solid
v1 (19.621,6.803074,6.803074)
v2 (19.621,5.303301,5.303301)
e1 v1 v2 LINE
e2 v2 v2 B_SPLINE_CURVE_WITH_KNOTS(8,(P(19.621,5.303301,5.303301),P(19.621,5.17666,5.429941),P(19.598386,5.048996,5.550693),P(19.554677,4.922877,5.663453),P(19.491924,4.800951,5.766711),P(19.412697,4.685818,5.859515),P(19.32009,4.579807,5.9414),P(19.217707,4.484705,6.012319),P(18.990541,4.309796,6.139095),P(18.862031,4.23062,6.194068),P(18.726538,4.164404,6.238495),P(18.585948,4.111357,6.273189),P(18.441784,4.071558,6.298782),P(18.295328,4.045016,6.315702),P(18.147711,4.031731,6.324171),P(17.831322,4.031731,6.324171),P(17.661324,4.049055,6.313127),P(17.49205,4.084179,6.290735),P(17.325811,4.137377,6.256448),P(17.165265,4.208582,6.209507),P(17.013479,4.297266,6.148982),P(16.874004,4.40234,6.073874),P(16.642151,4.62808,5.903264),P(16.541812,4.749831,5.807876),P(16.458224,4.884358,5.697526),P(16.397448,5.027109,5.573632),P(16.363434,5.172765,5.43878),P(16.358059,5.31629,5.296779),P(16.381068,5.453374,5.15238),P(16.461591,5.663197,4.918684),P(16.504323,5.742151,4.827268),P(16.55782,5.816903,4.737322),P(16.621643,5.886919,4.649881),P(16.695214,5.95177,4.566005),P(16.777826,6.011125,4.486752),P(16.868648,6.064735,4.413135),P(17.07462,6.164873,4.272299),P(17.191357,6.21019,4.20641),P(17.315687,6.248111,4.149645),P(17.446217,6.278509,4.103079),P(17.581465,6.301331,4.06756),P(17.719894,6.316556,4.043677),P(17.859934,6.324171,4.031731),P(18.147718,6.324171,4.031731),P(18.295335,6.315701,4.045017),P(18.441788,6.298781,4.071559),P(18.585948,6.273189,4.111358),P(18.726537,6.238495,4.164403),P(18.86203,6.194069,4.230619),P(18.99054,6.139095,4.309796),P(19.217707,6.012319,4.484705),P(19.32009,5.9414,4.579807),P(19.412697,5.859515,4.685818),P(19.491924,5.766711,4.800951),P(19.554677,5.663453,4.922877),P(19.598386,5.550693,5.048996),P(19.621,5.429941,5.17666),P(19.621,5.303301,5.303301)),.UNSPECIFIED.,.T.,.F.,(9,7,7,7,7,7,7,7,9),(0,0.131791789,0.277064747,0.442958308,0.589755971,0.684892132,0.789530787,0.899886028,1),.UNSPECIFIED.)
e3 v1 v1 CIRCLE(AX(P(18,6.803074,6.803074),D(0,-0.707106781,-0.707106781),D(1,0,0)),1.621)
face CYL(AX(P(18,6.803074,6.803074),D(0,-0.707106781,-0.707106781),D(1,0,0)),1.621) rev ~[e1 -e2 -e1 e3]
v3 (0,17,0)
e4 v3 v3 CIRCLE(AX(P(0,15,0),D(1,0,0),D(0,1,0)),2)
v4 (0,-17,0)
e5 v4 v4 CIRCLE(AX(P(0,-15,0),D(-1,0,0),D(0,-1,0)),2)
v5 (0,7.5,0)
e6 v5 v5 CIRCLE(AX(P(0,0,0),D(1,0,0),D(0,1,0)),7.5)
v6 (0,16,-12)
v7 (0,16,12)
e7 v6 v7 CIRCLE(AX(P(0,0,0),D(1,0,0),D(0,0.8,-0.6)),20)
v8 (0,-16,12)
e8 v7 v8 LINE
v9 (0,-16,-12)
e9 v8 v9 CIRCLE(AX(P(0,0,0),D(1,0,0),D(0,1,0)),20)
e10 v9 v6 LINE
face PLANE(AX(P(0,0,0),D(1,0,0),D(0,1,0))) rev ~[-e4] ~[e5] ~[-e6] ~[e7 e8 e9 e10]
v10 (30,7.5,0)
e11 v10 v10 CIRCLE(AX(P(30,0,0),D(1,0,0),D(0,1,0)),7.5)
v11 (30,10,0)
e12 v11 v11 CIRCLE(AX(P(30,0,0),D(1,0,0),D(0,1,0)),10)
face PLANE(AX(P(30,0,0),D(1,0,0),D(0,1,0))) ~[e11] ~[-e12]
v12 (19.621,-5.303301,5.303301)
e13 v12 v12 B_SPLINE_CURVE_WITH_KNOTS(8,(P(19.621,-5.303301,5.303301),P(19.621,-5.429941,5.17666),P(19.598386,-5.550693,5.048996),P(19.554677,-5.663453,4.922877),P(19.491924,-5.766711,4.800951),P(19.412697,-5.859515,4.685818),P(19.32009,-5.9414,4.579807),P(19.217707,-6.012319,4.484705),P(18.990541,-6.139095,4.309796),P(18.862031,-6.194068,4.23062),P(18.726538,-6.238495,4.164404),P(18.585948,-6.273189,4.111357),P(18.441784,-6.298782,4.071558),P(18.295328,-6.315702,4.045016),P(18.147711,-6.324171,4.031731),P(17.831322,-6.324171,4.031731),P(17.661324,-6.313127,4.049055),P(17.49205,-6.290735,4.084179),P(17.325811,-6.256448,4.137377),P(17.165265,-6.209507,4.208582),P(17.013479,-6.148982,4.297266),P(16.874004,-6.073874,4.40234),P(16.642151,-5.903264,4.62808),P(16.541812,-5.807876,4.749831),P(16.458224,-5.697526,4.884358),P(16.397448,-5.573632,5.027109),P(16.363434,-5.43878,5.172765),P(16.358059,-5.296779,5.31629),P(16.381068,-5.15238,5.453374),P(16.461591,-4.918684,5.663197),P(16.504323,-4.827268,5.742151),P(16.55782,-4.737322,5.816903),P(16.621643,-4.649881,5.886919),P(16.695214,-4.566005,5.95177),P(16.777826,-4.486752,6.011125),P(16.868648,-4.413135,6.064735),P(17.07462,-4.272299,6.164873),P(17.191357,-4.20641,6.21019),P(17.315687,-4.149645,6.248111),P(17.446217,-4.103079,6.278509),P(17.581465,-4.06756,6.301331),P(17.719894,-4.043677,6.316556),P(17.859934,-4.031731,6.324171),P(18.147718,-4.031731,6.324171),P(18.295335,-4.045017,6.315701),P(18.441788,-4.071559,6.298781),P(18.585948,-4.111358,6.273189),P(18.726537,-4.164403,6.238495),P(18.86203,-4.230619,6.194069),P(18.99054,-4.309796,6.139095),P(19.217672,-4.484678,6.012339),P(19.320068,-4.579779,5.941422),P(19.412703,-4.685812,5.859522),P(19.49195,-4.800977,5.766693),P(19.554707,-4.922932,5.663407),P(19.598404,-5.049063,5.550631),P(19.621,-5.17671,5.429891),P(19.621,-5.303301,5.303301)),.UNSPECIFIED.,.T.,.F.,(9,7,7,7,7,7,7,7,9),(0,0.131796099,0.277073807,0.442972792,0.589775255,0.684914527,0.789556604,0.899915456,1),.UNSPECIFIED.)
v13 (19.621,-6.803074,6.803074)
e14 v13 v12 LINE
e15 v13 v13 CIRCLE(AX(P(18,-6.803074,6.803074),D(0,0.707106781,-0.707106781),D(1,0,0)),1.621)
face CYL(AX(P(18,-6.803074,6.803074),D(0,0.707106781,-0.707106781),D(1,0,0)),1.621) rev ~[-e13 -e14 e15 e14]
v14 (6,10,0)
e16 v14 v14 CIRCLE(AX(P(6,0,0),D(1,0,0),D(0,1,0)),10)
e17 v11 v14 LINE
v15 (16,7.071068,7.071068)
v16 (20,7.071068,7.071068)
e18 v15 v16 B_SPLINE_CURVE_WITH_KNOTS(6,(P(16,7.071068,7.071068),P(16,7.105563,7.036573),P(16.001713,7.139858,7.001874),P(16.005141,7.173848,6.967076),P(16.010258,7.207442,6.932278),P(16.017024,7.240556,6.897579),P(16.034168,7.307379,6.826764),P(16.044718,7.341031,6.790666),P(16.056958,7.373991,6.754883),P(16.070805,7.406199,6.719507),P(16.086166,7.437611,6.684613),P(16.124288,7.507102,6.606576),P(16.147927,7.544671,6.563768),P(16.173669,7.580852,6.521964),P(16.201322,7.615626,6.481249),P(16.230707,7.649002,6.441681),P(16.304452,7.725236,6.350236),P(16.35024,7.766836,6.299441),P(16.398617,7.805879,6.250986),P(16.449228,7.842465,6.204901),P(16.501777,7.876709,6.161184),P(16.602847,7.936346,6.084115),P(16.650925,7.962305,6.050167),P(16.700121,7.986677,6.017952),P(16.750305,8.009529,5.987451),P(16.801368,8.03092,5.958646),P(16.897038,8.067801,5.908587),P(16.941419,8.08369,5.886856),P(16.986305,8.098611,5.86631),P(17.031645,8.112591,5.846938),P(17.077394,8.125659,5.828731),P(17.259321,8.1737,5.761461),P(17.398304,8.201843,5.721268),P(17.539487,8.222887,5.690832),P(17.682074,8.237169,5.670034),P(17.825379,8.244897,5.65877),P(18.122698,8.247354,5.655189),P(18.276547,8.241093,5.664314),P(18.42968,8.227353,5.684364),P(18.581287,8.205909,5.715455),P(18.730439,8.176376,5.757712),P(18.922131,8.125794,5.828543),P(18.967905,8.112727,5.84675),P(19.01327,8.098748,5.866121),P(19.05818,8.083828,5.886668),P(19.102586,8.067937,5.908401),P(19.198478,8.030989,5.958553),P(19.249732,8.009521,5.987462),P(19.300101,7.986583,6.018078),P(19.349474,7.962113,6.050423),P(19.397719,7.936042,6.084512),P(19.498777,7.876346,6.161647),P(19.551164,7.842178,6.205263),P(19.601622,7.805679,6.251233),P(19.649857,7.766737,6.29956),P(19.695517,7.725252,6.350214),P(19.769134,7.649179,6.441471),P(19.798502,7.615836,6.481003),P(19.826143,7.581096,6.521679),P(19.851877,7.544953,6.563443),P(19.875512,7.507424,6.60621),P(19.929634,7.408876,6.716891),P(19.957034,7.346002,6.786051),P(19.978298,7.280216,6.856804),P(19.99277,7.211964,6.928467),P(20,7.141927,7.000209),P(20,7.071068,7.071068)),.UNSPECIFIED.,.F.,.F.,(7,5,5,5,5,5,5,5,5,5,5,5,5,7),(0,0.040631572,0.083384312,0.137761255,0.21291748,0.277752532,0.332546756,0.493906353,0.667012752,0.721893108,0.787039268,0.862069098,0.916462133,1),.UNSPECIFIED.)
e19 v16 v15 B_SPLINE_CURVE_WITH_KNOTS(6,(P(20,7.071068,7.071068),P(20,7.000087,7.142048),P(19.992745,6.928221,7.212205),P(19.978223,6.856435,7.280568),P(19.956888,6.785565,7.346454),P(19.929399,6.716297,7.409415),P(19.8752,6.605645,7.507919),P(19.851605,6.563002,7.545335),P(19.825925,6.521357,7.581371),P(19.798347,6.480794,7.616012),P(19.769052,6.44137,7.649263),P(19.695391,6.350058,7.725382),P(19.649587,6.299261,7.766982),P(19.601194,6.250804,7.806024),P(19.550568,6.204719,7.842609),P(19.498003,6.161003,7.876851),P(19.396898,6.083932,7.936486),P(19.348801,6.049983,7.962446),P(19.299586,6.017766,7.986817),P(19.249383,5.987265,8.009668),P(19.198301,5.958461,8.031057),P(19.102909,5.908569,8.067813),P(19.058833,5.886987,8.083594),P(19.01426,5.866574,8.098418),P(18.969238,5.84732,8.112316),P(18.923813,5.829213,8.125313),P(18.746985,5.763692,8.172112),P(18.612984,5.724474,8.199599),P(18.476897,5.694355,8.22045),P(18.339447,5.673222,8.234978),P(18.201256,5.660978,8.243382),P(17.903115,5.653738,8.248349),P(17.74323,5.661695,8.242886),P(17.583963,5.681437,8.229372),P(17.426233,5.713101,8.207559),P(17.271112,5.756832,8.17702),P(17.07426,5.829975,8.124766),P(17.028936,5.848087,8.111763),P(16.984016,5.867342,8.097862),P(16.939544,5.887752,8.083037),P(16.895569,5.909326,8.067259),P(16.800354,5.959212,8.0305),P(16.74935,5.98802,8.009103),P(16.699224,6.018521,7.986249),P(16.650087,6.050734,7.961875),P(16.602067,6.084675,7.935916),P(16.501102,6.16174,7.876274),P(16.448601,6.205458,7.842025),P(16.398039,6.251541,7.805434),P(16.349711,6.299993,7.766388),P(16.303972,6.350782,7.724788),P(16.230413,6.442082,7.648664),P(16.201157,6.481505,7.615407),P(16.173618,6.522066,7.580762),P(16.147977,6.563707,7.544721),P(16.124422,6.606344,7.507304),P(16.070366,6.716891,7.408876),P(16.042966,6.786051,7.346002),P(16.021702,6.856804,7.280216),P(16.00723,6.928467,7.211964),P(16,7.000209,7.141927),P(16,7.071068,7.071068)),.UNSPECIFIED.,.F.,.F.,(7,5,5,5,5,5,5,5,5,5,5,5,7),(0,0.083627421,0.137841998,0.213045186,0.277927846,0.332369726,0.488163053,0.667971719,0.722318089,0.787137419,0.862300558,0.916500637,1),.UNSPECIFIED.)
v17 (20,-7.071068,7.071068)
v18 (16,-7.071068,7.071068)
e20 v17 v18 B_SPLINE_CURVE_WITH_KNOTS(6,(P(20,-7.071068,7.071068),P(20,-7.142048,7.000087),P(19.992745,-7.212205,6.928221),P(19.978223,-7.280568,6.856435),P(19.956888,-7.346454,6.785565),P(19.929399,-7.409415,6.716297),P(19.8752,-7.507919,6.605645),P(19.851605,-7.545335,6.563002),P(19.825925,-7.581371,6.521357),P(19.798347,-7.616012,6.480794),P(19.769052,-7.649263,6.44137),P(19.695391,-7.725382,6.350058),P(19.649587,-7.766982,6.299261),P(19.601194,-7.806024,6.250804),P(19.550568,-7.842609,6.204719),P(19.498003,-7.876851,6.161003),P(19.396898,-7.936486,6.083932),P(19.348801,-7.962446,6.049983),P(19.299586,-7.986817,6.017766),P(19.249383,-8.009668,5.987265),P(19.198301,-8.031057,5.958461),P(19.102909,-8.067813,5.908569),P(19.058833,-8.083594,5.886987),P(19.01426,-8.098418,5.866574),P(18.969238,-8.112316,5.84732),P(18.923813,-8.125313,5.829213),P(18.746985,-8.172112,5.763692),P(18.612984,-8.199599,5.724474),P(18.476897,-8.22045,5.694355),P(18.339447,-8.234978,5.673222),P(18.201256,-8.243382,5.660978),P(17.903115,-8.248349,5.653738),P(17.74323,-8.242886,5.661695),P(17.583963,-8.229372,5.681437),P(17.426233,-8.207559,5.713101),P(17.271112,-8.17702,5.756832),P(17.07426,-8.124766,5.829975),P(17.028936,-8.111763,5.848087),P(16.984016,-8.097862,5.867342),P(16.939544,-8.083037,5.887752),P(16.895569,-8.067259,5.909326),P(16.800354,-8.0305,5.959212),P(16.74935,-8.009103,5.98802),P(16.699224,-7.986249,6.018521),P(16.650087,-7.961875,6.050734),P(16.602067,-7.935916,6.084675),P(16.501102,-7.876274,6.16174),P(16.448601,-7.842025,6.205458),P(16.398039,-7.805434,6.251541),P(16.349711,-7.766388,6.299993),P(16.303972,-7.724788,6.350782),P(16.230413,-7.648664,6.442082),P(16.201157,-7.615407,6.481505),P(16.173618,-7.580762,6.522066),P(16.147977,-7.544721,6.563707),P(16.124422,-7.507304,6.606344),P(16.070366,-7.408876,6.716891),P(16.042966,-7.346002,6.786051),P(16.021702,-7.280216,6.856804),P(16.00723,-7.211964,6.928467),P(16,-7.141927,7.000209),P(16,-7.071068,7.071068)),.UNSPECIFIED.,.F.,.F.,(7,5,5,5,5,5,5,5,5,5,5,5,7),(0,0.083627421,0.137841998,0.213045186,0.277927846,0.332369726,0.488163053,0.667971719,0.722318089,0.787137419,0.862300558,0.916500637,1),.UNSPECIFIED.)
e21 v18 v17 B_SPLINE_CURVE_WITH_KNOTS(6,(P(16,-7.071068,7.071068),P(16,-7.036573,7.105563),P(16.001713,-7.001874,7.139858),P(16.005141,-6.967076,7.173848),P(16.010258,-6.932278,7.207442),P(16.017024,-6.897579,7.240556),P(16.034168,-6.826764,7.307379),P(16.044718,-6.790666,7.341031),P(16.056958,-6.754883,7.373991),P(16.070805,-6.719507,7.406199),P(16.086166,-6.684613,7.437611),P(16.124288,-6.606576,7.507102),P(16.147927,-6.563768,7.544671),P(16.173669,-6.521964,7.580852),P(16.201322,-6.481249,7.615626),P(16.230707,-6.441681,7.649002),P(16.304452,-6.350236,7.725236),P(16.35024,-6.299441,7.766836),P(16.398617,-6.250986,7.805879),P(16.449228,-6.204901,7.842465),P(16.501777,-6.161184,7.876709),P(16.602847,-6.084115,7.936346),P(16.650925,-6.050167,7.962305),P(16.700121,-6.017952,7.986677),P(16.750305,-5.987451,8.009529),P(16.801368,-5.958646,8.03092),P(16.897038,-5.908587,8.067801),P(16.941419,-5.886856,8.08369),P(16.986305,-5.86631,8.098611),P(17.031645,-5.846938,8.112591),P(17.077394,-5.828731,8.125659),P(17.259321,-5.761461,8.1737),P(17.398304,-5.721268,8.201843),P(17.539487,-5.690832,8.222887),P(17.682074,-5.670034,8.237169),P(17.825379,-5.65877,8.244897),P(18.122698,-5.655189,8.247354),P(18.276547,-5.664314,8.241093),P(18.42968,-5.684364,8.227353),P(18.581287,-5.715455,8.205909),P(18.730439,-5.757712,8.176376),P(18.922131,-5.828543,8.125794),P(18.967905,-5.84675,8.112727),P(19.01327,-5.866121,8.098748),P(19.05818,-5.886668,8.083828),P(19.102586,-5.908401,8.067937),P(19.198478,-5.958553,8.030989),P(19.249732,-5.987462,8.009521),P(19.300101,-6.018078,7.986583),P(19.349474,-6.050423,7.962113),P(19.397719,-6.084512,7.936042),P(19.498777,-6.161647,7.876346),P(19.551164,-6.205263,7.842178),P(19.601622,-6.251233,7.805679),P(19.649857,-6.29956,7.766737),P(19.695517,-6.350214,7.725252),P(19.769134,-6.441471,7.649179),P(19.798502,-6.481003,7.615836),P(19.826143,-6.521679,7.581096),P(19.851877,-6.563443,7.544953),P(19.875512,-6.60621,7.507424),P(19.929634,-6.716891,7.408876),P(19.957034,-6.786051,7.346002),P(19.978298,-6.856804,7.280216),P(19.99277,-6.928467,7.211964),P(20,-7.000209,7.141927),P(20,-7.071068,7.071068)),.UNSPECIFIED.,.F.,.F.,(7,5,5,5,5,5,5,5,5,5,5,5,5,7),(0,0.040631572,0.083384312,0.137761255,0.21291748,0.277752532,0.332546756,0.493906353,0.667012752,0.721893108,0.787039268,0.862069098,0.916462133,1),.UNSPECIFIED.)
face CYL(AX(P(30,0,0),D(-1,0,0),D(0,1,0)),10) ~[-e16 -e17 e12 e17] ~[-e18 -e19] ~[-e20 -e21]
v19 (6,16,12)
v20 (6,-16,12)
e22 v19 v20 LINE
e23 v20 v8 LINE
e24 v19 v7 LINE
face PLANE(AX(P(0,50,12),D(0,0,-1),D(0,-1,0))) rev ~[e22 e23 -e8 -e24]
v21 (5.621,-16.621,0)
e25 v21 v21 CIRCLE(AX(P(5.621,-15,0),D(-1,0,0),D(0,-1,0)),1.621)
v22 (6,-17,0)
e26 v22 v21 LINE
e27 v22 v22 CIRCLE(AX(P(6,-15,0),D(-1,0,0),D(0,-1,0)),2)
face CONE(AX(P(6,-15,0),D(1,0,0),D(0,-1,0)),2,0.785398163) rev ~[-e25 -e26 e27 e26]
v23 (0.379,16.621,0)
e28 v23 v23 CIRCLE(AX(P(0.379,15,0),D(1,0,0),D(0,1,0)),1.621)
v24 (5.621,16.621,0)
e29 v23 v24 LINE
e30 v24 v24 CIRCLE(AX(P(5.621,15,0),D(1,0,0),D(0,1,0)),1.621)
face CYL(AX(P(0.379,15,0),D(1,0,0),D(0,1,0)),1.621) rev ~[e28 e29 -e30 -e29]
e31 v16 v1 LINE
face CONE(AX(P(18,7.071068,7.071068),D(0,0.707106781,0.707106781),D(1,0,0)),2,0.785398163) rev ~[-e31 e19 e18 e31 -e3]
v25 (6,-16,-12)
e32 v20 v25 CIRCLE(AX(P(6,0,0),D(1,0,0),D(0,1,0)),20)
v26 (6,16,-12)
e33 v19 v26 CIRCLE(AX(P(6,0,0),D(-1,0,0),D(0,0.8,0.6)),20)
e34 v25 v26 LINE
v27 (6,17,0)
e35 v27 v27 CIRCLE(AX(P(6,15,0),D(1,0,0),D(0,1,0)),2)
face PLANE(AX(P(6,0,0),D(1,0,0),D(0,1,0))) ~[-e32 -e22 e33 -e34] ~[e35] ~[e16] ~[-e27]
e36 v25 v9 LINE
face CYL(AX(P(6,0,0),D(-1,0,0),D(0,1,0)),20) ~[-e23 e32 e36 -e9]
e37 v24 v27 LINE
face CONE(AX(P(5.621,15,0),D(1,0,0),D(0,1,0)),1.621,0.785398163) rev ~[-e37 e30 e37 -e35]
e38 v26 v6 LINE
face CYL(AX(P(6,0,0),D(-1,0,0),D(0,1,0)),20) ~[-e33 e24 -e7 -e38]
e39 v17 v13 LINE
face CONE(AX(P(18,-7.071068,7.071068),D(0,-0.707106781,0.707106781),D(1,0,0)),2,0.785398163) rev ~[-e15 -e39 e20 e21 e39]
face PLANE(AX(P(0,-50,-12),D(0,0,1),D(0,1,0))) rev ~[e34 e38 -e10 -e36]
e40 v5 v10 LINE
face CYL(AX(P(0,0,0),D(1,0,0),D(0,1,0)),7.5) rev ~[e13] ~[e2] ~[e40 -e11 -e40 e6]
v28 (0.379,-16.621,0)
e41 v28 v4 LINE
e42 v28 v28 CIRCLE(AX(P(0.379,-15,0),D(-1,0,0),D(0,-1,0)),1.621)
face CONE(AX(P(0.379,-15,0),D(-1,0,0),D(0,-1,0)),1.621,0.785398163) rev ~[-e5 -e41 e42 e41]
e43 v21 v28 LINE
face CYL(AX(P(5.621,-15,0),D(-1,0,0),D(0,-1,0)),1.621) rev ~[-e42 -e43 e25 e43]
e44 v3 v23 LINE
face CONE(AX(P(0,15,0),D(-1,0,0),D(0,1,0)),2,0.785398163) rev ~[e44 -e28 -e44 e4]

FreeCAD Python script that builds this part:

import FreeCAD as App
import Part
import Sketcher
Q = App.Units.Quantity


def add_polygon(sketch, points):
    """Adds a closed chain of lines whose ends are joined by coincident constraints."""
    first, n = sketch.GeometryCount, len(points)
    for a, b in zip(points, points[1:] + points[:1]):
        sketch.addGeometry(Part.LineSegment(App.Vector(*a, 0), App.Vector(*b, 0)), False)
    for i in range(n):
        sketch.addConstraint(Sketcher.Constraint("Coincident", first + i, 2, first + (i + 1) % n, 1))

doc = App.newDocument("Part")
body = doc.addObject("PartDesign::Body", "Body")

sketch1 = doc.addObject("Sketcher::SketchObject", "Sketch")
body.addObject(sketch1)
sketch1.AttachmentSupport = (doc.XY_Plane, [""])
sketch1.MapMode = "FlatFace"
add_polygon(sketch1, [(6, 20), (0, 20), (0, 7.5), (30, 7.5), (30, 10), (6, 10)])
sketch1.addConstraint([
    Sketcher.Constraint("Horizontal", 0),
    Sketcher.Constraint("Vertical", 1),
    Sketcher.Constraint("Horizontal", 2),
    Sketcher.Constraint("Vertical", 3),
    Sketcher.Constraint("Horizontal", 4),
    Sketcher.Constraint("Vertical", 5),
    Sketcher.Constraint("PointOnObject", 0, 2, -2),
    Sketcher.Constraint("DistanceX", 0, 2, 0, 1, 6.0),
    Sketcher.Constraint("DistanceX", 2, 1, 2, 2, 30.0),
    Sketcher.Constraint("DistanceY", 5, 1, 5, 2, 10.0),
    Sketcher.Constraint("DistanceY", 1, 2, 1, 1, 12.5),
    Sketcher.Constraint("DistanceY", -1, 1, 0, 2, 20.0),
])
revolution = doc.addObject("PartDesign::Revolution", "Revolution")
body.addObject(revolution)
revolution.Profile = sketch1
revolution.ReferenceAxis = (sketch1, ["H_Axis"])
revolution.Angle = 360

sketch2 = doc.addObject("Sketcher::SketchObject", "Sketch001")
body.addObject(sketch2)
sketch2.Placement = App.Placement(App.Vector(0, 0, 0), App.Rotation(App.Vector(1, 0, 0), App.Vector(0, 0.707106781, 0.707106781), App.Vector(0, -0.707106781, 0.707106781), "ZXY"))
add_polygon(sketch2, [(18, 10), (18, 7.2), (19.6, 7.2), (19.6, 9.6), (20, 10)])
sketch2.addGeometry(Part.LineSegment(App.Vector(18, 10, 0), App.Vector(18, 7.2, 0)), True)
sketch2.addConstraint([
    Sketcher.Constraint("Vertical", 0),
    Sketcher.Constraint("Horizontal", 1),
    Sketcher.Constraint("Vertical", 2),
    Sketcher.Constraint("Horizontal", 4),
    Sketcher.Constraint("Vertical", 5),
    Sketcher.Constraint("Coincident", 5, 1, 4, 2),
    Sketcher.Constraint("Horizontal", 1, 2, 5, 2),
    Sketcher.Constraint("DistanceX", 4, 2, 4, 1, 2.0),
    Sketcher.Constraint("Angle", 3, Q("45 deg")),
    Sketcher.Constraint("DistanceX", -1, 1, 0, 2, 18.0),
    Sketcher.Constraint("DistanceY", -1, 1, 3, 2, 10.0),
    Sketcher.Constraint("DistanceX", 1, 1, 1, 2, 1.621),
    Sketcher.Constraint("DistanceY", 0, 2, 0, 1, 2.7716),
])
groove = doc.addObject("PartDesign::Groove", "Groove")
body.addObject(groove)
groove.Profile = sketch2
groove.ReferenceAxis = (sketch2, ["Axis0"])
groove.Angle = 360

sketch3 = doc.addObject("Sketcher::SketchObject", "Sketch002")
body.addObject(sketch3)
sketch3.Placement = App.Placement(App.Vector(0, 0, 0), App.Rotation(App.Vector(1, 0, 0), App.Vector(0, -0.707106781, 0.707106781), App.Vector(0, -0.707106781, -0.707106781), "ZXY"))
add_polygon(sketch3, [(18, 10), (18, 7.2), (19.6, 7.2), (19.6, 9.6), (20, 10)])
sketch3.addGeometry(Part.LineSegment(App.Vector(18, 10, 0), App.Vector(18, 7.2, 0)), True)
sketch3.addConstraint([
    Sketcher.Constraint("Vertical", 0),
    Sketcher.Constraint("Horizontal", 1),
    Sketcher.Constraint("Vertical", 2),
    Sketcher.Constraint("Horizontal", 4),
    Sketcher.Constraint("Vertical", 5),
    Sketcher.Constraint("Coincident", 5, 1, 4, 2),
    Sketcher.Constraint("Horizontal", 1, 2, 5, 2),
    Sketcher.Constraint("DistanceX", 4, 2, 4, 1, 2.0),
    Sketcher.Constraint("Angle", 3, Q("45 deg")),
    Sketcher.Constraint("DistanceX", -1, 1, 0, 2, 18.0),
    Sketcher.Constraint("DistanceY", -1, 1, 3, 2, 10.0),
    Sketcher.Constraint("DistanceX", 1, 1, 1, 2, 1.621),
    Sketcher.Constraint("DistanceY", 0, 2, 0, 1, 2.7716),
])
groove2 = doc.addObject("PartDesign::Groove", "Groove001")
body.addObject(groove2)
groove2.Profile = sketch3
groove2.ReferenceAxis = (sketch3, ["Axis0"])
groove2.Angle = 360

sketch4 = doc.addObject("Sketcher::SketchObject", "Sketch003")
body.addObject(sketch4)
sketch4.AttachmentSupport = (doc.YZ_Plane, [""])
sketch4.MapMode = "FlatFace"
sketch4.addGeometry(Part.Circle(App.Vector(0, 0, 0), App.Vector(0, 0, 1), 150), False)
add_polygon(sketch4, [(-50, -12), (-50, 12), (50, 12), (50, -12)])
sketch4.addConstraint([
    Sketcher.Constraint("Vertical", 1),
    Sketcher.Constraint("Horizontal", 2),
    Sketcher.Constraint("Vertical", 3),
    Sketcher.Constraint("Horizontal", 4),
    Sketcher.Constraint("Coincident", 0, 3, -1, 1),
    Sketcher.Constraint("Symmetric", 1, 2, 3, 2, -1, 1),
    Sketcher.Constraint("Diameter", 0, 300.0),
    Sketcher.Constraint("DistanceX", 2, 1, 2, 2, 100.0),
    Sketcher.Constraint("DistanceY", 1, 1, 1, 2, 24.0),
])
pocket1 = doc.addObject("PartDesign::Pocket", "Pocket")
body.addObject(pocket1)
pocket1.Profile = sketch4
pocket1.Length = 30
pocket1.Reversed = True

sketch5 = doc.addObject("Sketcher::SketchObject", "Sketch004")
body.addObject(sketch5)
sketch5.AttachmentSupport = (doc.XY_Plane, [""])
sketch5.MapMode = "FlatFace"
add_polygon(sketch5, [(0, 15), (6, 15), (6, 17), (5.6, 16.6), (0.4, 16.6), (0, 17)])
sketch5.addGeometry(Part.LineSegment(App.Vector(0, 15, 0), App.Vector(6, 15, 0)), True)
sketch5.addConstraint([
    Sketcher.Constraint("Horizontal", 0),
    Sketcher.Constraint("Vertical", 1),
    Sketcher.Constraint("Horizontal", 3),
    Sketcher.Constraint("Vertical", 5),
    Sketcher.Constraint("Horizontal", 6),
    Sketcher.Constraint("Coincident", 6, 1, 5, 2),
    Sketcher.Constraint("PointOnObject", 4, 2, -2),
    Sketcher.Constraint("Perpendicular", 2, 4),
    Sketcher.Constraint("Horizontal", 1, 2, 4, 2),
    Sketcher.Constraint("Vertical", 1, 2, 6, 2),
    Sketcher.Constraint("Equal", 2, 4),
    Sketcher.Constraint("DistanceX", 0, 1, 0, 2, 6.0),
    Sketcher.Constraint("DistanceY", 1, 1, 1, 2, 2.0),
    Sketcher.Constraint("DistanceY", -1, 1, 0, 2, 15.0),
    Sketcher.Constraint("DistanceX", 3, 2, 3, 1, 5.242),
])
groove3 = doc.addObject("PartDesign::Groove", "Groove002")
body.addObject(groove3)
groove3.Profile = sketch5
groove3.ReferenceAxis = (sketch5, ["Axis0"])
groove3.Angle = 360

sketch6 = doc.addObject("Sketcher::SketchObject", "Sketch005")
body.addObject(sketch6)
sketch6.AttachmentSupport = (doc.XY_Plane, [""])
sketch6.MapMode = "FlatFace"
add_polygon(sketch6, [(6, -15), (0, -15), (0, -17), (0.4, -16.6), (5.6, -16.6), (6, -17)])
sketch6.addGeometry(Part.LineSegment(App.Vector(6, -15, 0), App.Vector(0, -15, 0)), True)
sketch6.addConstraint([
    Sketcher.Constraint("Horizontal", 0),
    Sketcher.Constraint("Vertical", 1),
    Sketcher.Constraint("Horizontal", 3),
    Sketcher.Constraint("Vertical", 5),
    Sketcher.Constraint("Horizontal", 6),
    Sketcher.Constraint("Coincident", 6, 1, 5, 2),
    Sketcher.Constraint("PointOnObject", 0, 2, -2),
    Sketcher.Constraint("PointOnObject", 6, 2, -2),
    Sketcher.Constraint("Perpendicular", 2, 4),
    Sketcher.Constraint("Horizontal", 1, 2, 4, 2),
    Sketcher.Constraint("Equal", 2, 4),
    Sketcher.Constraint("DistanceX", 0, 2, 0, 1, 6.0),
    Sketcher.Constraint("DistanceY", 1, 2, 1, 1, 2.0),
    Sketcher.Constraint("DistanceY", 0, 2, -1, 1, 15.0),
    Sketcher.Constraint("DistanceX", 3, 1, 3, 2, 5.242),
])
groove4 = doc.addObject("PartDesign::Groove", "Groove003")
body.addObject(groove4)
groove4.Profile = sketch6
groove4.ReferenceAxis = (sketch6, ["Axis0"])
groove4.Angle = 360

doc.recompute()
